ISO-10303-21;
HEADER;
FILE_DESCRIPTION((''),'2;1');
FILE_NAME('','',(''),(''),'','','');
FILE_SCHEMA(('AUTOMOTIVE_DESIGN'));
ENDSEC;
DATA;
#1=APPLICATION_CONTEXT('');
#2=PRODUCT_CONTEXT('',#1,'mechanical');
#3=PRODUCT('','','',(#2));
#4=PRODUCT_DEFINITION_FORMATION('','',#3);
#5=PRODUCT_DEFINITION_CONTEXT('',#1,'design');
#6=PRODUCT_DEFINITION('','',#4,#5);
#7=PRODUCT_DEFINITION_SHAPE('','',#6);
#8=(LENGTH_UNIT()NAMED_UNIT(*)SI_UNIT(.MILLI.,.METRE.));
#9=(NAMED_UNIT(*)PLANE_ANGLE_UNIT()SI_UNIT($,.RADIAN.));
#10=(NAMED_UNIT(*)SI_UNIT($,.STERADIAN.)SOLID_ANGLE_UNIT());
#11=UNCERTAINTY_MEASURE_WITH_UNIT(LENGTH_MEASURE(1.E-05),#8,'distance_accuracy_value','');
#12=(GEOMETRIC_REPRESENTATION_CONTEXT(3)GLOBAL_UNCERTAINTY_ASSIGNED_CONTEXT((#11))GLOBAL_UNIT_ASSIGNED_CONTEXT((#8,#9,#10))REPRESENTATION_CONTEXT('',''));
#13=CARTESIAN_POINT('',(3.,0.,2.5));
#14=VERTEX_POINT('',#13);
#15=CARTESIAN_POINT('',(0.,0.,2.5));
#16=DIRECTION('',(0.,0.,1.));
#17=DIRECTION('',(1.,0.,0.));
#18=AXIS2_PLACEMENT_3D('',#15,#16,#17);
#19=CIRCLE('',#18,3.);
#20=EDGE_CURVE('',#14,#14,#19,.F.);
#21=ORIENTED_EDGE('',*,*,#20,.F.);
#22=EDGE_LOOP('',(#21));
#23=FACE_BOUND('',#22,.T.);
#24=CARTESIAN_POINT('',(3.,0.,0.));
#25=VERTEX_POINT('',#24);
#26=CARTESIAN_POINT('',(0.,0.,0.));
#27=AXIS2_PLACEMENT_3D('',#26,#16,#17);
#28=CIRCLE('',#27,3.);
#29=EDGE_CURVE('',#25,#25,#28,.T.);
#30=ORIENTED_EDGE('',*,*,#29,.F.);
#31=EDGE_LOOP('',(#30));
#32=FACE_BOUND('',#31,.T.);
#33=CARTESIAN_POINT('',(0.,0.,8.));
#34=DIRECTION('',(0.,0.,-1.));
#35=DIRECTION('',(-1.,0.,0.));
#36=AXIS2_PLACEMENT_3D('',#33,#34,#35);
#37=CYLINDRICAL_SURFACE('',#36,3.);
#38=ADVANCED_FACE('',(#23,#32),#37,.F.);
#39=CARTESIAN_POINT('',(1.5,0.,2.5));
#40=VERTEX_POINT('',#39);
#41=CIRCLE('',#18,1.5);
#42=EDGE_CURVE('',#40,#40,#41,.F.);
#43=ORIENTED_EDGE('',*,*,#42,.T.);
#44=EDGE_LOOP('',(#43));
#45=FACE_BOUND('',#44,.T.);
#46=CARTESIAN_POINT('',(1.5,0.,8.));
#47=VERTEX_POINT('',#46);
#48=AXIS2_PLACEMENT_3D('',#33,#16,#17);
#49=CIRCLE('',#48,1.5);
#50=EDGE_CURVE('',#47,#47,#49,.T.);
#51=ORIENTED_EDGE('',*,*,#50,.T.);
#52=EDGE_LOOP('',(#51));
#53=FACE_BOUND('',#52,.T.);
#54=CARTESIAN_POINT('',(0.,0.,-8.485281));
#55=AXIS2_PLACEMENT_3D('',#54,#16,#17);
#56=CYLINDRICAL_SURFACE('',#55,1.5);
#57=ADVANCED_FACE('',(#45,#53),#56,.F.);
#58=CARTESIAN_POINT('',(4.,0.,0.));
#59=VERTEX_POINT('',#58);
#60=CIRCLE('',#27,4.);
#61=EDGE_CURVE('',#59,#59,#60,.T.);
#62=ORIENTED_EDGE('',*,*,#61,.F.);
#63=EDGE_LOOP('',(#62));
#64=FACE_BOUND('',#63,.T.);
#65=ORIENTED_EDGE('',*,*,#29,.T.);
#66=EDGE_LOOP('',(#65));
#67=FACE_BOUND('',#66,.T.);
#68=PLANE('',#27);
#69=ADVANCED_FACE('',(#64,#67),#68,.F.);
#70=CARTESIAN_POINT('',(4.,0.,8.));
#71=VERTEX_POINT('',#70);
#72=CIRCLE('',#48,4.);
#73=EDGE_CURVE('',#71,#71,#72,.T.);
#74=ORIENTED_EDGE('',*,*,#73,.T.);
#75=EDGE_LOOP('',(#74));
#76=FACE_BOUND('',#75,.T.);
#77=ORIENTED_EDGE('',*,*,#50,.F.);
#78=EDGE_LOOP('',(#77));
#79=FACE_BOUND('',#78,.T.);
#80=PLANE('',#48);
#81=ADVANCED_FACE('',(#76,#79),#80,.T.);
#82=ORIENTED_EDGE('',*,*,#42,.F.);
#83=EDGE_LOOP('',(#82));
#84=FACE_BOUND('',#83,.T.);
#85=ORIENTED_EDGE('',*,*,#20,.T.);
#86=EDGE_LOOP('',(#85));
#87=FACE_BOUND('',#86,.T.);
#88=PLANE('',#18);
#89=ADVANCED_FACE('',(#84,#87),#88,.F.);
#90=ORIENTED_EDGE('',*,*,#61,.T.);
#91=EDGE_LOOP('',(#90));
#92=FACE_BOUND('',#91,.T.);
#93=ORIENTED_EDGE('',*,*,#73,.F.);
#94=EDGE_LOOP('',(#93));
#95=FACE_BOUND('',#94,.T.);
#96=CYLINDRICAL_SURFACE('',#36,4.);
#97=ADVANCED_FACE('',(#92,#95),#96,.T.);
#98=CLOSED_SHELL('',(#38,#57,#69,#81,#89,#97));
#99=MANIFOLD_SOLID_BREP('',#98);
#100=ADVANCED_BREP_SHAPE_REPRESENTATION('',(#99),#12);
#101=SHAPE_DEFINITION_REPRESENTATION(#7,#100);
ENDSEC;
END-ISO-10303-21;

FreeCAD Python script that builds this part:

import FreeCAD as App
import Part
import Sketcher
Q = App.Units.Quantity

doc = App.newDocument("Part")
params = doc.addObject("Spreadsheet::Sheet", "Params")
for row, (alias, value) in enumerate([
    ("sketch1_diameter", "8 mm"),
    ("sketch1_diameter2", "6 mm"),
    ("pad1_length", "8 mm"),
    ("sketch2_diameter", "6 mm"),
    ("sketch2_diameter2", "3 mm"),
    ("pad2_length", "5.5 mm"),
], start=1):
    params.set(f"A{row}", alias)
    params.set(f"B{row}", "=" + value)
    params.setAlias(f"B{row}", alias)

body = doc.addObject("PartDesign::Body", "Body")

# Sketch on XY plane
sketch1 = doc.addObject("Sketcher::SketchObject", "Sketch")
body.addObject(sketch1)
sketch1.AttachmentSupport = (doc.XY_Plane, [""])
sketch1.MapMode = "FlatFace"
sketch1.addGeometry([
    Part.Circle(App.Vector(0, 0, 0), App.Vector(0, 0, 1), 4),
    Part.Circle(App.Vector(0, 0, 0), App.Vector(0, 0, 1), 3),
], False)
sketch1.addConstraint([
    Sketcher.Constraint("Coincident", 0, 3, -1, 1),
    Sketcher.Constraint("Coincident", 1, 3, -1, 1),
    Sketcher.Constraint("Diameter", 0, Q("8 mm")),
    Sketcher.Constraint("Diameter", 1, Q("6 mm")),
])
sketch1.setExpression("Constraints[2]", "Params.sketch1_diameter")
sketch1.setExpression("Constraints[3]", "Params.sketch1_diameter2")
pad1 = doc.addObject("PartDesign::Pad", "Pad")
body.addObject(pad1)
pad1.Profile = sketch1
pad1.setExpression("Length", "Params.pad1_length")

# Sketch on XY plane
sketch2 = doc.addObject("Sketcher::SketchObject", "Sketch001")
body.addObject(sketch2)
sketch2.AttachmentSupport = (doc.XY_Plane, [""])
sketch2.MapMode = "FlatFace"
sketch2.AttachmentOffset = App.Placement(App.Vector(0, 0, 2.5), App.Rotation())
sketch2.addGeometry([
    Part.Circle(App.Vector(0, 0, 0), App.Vector(0, 0, 1), 3),
    Part.Circle(App.Vector(0, 0, 0), App.Vector(0, 0, 1), 1.5),
], False)
sketch2.addConstraint([
    Sketcher.Constraint("Coincident", 0, 3, -1, 1),
    Sketcher.Constraint("Coincident", 1, 3, -1, 1),
    Sketcher.Constraint("Diameter", 0, Q("6 mm")),
    Sketcher.Constraint("Diameter", 1, Q("3 mm")),
])
sketch2.setExpression("Constraints[2]", "Params.sketch2_diameter")
sketch2.setExpression("Constraints[3]", "Params.sketch2_diameter2")
pad2 = doc.addObject("PartDesign::Pad", "Pad001")
body.addObject(pad2)
pad2.Profile = sketch2
pad2.setExpression("Length", "Params.pad2_length")

doc.recompute()
